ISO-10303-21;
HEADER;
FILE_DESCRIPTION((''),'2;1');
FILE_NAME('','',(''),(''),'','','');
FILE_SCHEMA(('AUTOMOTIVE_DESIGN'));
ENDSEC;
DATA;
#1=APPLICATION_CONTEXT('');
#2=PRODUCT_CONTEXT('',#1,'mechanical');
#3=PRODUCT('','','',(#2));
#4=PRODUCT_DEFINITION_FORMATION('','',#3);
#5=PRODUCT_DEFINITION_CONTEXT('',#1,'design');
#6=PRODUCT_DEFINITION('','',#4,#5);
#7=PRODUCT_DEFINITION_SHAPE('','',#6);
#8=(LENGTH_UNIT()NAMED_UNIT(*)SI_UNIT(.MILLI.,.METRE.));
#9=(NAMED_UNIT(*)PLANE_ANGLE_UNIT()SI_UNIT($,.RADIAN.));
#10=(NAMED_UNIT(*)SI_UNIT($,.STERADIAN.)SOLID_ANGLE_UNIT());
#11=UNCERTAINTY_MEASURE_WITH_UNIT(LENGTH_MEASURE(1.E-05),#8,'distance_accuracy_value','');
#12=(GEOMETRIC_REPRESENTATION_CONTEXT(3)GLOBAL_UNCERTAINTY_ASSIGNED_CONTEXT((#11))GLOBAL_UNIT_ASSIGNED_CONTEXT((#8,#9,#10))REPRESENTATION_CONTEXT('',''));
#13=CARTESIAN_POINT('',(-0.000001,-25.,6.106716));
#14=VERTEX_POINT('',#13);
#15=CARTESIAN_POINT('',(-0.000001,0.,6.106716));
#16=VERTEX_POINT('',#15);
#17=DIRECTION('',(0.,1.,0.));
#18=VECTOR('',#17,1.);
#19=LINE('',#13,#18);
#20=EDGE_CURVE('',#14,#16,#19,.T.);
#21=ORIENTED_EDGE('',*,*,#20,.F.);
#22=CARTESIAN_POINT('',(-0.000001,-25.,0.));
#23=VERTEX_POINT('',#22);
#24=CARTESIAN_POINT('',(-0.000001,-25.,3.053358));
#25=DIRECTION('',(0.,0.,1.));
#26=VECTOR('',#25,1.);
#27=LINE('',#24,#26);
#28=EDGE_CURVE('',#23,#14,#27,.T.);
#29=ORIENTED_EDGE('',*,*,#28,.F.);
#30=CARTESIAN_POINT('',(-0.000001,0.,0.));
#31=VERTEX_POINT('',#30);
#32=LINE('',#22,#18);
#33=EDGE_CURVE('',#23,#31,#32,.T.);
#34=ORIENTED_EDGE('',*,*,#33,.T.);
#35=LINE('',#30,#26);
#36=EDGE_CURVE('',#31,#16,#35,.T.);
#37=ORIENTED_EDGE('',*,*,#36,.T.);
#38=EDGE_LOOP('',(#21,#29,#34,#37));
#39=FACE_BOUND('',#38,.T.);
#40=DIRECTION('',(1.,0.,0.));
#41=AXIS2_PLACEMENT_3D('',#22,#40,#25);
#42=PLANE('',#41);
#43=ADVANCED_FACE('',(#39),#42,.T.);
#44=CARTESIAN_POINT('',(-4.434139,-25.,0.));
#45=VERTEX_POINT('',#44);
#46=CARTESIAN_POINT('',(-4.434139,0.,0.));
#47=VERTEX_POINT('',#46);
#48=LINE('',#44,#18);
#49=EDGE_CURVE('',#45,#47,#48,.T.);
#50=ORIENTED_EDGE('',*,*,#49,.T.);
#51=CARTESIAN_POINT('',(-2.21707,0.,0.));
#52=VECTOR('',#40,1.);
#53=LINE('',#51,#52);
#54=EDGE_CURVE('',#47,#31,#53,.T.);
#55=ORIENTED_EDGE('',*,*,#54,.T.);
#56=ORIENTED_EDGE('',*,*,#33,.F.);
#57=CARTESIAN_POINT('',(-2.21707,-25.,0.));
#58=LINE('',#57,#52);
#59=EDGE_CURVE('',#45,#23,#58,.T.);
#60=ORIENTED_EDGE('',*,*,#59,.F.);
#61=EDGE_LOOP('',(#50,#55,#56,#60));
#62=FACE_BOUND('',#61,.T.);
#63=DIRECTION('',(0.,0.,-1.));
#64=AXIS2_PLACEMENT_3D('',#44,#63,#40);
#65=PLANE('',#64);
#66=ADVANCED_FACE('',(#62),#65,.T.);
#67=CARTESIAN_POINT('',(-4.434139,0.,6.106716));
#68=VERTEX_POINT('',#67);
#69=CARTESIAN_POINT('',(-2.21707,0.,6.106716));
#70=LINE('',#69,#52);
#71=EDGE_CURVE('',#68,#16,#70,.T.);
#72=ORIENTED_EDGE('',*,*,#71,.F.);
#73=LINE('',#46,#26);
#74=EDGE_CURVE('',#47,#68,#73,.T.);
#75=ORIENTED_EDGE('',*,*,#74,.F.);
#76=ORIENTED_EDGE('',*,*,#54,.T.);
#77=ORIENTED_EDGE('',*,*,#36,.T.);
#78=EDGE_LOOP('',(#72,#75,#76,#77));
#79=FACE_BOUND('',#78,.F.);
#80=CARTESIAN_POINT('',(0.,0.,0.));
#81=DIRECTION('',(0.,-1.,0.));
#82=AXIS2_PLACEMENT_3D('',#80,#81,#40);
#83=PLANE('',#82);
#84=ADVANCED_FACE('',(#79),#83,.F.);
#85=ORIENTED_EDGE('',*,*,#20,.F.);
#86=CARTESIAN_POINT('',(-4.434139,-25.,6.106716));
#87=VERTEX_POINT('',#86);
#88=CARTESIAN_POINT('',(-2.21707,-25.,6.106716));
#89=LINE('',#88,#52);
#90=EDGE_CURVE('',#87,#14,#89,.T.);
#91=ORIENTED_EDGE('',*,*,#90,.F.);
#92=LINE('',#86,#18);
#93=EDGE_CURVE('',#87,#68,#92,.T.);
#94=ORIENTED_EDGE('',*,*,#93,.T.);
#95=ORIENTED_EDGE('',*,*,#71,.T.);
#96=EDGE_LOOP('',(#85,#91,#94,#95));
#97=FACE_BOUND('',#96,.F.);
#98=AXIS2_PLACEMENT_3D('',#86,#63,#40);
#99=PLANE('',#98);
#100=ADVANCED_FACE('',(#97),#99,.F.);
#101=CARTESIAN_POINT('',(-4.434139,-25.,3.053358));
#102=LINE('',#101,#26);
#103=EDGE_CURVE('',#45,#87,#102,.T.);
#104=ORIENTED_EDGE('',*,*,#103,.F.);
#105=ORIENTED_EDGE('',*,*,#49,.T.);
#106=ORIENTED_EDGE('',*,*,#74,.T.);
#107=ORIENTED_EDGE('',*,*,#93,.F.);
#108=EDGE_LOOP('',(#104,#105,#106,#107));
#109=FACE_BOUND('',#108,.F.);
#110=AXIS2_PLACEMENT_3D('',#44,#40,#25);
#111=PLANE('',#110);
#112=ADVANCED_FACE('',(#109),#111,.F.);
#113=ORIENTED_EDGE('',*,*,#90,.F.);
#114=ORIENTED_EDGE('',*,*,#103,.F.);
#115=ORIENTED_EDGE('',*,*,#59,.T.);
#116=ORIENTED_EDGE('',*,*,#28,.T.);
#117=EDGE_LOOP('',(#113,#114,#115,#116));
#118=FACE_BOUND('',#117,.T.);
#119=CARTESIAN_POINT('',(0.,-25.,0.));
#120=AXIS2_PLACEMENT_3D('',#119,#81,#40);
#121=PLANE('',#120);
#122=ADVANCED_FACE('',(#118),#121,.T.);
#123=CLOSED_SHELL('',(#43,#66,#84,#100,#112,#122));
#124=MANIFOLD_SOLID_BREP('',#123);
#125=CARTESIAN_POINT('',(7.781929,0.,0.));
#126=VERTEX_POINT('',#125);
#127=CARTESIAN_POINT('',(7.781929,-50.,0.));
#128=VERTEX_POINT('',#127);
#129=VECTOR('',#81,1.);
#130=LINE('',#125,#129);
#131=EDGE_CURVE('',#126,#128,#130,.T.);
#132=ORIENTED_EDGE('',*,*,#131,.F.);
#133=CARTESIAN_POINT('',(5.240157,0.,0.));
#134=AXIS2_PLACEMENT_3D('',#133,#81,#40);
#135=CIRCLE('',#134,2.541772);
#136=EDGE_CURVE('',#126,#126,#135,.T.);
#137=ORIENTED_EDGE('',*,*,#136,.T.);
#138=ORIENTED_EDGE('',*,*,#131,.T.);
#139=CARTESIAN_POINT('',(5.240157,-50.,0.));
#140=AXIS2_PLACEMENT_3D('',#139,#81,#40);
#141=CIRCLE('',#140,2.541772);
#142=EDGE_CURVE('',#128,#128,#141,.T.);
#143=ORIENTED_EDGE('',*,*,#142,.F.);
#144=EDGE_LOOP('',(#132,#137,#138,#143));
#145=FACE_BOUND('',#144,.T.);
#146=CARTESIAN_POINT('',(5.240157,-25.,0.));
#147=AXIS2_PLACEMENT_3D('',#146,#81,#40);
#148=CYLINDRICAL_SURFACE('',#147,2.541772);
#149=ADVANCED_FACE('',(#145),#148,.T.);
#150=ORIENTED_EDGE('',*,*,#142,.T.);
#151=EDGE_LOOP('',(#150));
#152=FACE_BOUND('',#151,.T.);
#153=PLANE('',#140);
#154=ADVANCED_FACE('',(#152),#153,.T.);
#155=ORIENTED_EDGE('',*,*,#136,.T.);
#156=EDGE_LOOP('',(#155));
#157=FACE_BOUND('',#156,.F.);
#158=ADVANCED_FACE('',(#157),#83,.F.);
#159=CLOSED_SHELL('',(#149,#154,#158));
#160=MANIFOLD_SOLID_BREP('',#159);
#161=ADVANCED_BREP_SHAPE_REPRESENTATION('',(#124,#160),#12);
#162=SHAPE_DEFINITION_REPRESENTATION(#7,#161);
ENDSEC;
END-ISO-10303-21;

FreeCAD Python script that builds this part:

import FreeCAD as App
import Part
import Sketcher
from FreeCAD import Vector
Q = App.Units.Quantity

doc = App.newDocument("Part")
params = doc.addObject("Spreadsheet::Sheet", "Params")
for row, (alias, value) in enumerate([
    ("sketch1_diameter", "20 mm"),
    ("pad1_length", "25 mm"),
    ("pad2_length", "25 mm"),
    ("sketch3_diameter", "20 mm"),
], start=1):
    params.set(f"A{row}", alias)
    params.set(f"B{row}", "=" + value)
    params.setAlias(f"B{row}", alias)

body = doc.addObject("PartDesign::Body", "Body")
body.AllowCompound = True

# Sketch on XZ plane
sketch1 = body.newObject("Sketcher::SketchObject", "Sketch")
sketch1.AttachmentSupport = (doc.getObject("XZ_Plane"), [""])
sketch1.MapMode = "FlatFace"
sketch1.addGeometry(Part.Circle(Vector(0, 0, 0), Vector(0, 0, 1), 10), False)
sketch1.addConstraint([
    Sketcher.Constraint("Coincident", 0, 3, -1, 1),
    Sketcher.Constraint("Diameter", 0, Q("20 mm")),
])
sketch1.setExpression("Constraints[1]", "Params.sketch1_diameter")
pad1 = body.newObject("PartDesign::Pad", "Pad")
pad1.Profile = sketch1
pad1.setExpression("Length", "Params.pad1_length")

# Sketch on XZ plane
sketch2 = body.newObject("Sketcher::SketchObject", "Sketch001")
sketch2.AttachmentSupport = (doc.getObject("XZ_Plane"), [""])
sketch2.MapMode = "FlatFace"
sketch2.AttachmentOffset = App.Placement(Vector(0, 0, 25), App.Rotation())
sketch2.addGeometry(Part.Circle(Vector(5.240157, 0, 0), Vector(0, 0, 1), 2.541772), False)
sketch2.addConstraint([
    Sketcher.Constraint("PointOnObject", 0, 3, -1),
    Sketcher.Constraint("Diameter", 0, Q("5.083544 mm")),
    Sketcher.Constraint("DistanceX", -1, 1, 0, 3, Q("5.240157 mm")),
])
pad2 = body.newObject("PartDesign::Pad", "Pad001")
pad2.Profile = sketch2
pad2.setExpression("Length", "Params.pad2_length")

# Sketch on XZ plane
sketch3 = body.newObject("Sketcher::SketchObject", "Sketch002")
sketch3.AttachmentSupport = (doc.getObject("XZ_Plane"), [""])
sketch3.MapMode = "FlatFace"
sketch3.AttachmentOffset = App.Placement(Vector(0, 0, 25), App.Rotation())
sketch3.addGeometry([
    Part.Circle(Vector(0, 0, 0), Vector(0, 0, 1), 10),  # 0
    Part.Circle(Vector(5.240157, 0, 0), Vector(0, 0, 1), 2.541772),  # 1
    Part.LineSegment(Vector(0, 0, 0), Vector(-4.434139, 0, 0)),  # 2
    Part.LineSegment(Vector(-4.434139, 0, 0), Vector(-4.434139, 6.106716, 0)),  # 3
    Part.LineSegment(Vector(-4.434139, 6.106716, 0), Vector(0, 6.106716, 0)),  # 4
    Part.LineSegment(Vector(0, 6.106716, 0), Vector(0, 0, 0)),  # 5
], False)
sketch3.addConstraint([
    Sketcher.Constraint("Coincident", 2, 2, 3, 1),
    Sketcher.Constraint("Coincident", 3, 2, 4, 1),
    Sketcher.Constraint("Coincident", 4, 2, 5, 1),
    Sketcher.Constraint("Coincident", 5, 2, 2, 1),
    Sketcher.Constraint("Horizontal", 2),
    Sketcher.Constraint("Vertical", 3),
    Sketcher.Constraint("Horizontal", 4),
    Sketcher.Constraint("Vertical", 5),
    Sketcher.Constraint("Coincident", 0, 3, -1, 1),
    Sketcher.Constraint("Coincident", 5, 2, -1, 1),
    Sketcher.Constraint("PointOnObject", 1, 3, -1),
    Sketcher.Constraint("Diameter", 0, Q("20 mm")),
    Sketcher.Constraint("Diameter", 1, Q("5.083544 mm")),
    Sketcher.Constraint("DistanceX", 2, 2, 2, 1, Q("4.434139 mm")),
    Sketcher.Constraint("DistanceY", 3, 1, 3, 2, Q("6.106716 mm")),
    Sketcher.Constraint("DistanceX", -1, 1, 1, 3, Q("5.240157 mm")),
])
sketch3.setExpression("Constraints[11]", "Params.sketch3_diameter")
pocket1 = body.newObject("PartDesign::Pocket", "Pocket")
pocket1.Profile = sketch3
pocket1.Type = "ThroughAll"

doc.recompute()
